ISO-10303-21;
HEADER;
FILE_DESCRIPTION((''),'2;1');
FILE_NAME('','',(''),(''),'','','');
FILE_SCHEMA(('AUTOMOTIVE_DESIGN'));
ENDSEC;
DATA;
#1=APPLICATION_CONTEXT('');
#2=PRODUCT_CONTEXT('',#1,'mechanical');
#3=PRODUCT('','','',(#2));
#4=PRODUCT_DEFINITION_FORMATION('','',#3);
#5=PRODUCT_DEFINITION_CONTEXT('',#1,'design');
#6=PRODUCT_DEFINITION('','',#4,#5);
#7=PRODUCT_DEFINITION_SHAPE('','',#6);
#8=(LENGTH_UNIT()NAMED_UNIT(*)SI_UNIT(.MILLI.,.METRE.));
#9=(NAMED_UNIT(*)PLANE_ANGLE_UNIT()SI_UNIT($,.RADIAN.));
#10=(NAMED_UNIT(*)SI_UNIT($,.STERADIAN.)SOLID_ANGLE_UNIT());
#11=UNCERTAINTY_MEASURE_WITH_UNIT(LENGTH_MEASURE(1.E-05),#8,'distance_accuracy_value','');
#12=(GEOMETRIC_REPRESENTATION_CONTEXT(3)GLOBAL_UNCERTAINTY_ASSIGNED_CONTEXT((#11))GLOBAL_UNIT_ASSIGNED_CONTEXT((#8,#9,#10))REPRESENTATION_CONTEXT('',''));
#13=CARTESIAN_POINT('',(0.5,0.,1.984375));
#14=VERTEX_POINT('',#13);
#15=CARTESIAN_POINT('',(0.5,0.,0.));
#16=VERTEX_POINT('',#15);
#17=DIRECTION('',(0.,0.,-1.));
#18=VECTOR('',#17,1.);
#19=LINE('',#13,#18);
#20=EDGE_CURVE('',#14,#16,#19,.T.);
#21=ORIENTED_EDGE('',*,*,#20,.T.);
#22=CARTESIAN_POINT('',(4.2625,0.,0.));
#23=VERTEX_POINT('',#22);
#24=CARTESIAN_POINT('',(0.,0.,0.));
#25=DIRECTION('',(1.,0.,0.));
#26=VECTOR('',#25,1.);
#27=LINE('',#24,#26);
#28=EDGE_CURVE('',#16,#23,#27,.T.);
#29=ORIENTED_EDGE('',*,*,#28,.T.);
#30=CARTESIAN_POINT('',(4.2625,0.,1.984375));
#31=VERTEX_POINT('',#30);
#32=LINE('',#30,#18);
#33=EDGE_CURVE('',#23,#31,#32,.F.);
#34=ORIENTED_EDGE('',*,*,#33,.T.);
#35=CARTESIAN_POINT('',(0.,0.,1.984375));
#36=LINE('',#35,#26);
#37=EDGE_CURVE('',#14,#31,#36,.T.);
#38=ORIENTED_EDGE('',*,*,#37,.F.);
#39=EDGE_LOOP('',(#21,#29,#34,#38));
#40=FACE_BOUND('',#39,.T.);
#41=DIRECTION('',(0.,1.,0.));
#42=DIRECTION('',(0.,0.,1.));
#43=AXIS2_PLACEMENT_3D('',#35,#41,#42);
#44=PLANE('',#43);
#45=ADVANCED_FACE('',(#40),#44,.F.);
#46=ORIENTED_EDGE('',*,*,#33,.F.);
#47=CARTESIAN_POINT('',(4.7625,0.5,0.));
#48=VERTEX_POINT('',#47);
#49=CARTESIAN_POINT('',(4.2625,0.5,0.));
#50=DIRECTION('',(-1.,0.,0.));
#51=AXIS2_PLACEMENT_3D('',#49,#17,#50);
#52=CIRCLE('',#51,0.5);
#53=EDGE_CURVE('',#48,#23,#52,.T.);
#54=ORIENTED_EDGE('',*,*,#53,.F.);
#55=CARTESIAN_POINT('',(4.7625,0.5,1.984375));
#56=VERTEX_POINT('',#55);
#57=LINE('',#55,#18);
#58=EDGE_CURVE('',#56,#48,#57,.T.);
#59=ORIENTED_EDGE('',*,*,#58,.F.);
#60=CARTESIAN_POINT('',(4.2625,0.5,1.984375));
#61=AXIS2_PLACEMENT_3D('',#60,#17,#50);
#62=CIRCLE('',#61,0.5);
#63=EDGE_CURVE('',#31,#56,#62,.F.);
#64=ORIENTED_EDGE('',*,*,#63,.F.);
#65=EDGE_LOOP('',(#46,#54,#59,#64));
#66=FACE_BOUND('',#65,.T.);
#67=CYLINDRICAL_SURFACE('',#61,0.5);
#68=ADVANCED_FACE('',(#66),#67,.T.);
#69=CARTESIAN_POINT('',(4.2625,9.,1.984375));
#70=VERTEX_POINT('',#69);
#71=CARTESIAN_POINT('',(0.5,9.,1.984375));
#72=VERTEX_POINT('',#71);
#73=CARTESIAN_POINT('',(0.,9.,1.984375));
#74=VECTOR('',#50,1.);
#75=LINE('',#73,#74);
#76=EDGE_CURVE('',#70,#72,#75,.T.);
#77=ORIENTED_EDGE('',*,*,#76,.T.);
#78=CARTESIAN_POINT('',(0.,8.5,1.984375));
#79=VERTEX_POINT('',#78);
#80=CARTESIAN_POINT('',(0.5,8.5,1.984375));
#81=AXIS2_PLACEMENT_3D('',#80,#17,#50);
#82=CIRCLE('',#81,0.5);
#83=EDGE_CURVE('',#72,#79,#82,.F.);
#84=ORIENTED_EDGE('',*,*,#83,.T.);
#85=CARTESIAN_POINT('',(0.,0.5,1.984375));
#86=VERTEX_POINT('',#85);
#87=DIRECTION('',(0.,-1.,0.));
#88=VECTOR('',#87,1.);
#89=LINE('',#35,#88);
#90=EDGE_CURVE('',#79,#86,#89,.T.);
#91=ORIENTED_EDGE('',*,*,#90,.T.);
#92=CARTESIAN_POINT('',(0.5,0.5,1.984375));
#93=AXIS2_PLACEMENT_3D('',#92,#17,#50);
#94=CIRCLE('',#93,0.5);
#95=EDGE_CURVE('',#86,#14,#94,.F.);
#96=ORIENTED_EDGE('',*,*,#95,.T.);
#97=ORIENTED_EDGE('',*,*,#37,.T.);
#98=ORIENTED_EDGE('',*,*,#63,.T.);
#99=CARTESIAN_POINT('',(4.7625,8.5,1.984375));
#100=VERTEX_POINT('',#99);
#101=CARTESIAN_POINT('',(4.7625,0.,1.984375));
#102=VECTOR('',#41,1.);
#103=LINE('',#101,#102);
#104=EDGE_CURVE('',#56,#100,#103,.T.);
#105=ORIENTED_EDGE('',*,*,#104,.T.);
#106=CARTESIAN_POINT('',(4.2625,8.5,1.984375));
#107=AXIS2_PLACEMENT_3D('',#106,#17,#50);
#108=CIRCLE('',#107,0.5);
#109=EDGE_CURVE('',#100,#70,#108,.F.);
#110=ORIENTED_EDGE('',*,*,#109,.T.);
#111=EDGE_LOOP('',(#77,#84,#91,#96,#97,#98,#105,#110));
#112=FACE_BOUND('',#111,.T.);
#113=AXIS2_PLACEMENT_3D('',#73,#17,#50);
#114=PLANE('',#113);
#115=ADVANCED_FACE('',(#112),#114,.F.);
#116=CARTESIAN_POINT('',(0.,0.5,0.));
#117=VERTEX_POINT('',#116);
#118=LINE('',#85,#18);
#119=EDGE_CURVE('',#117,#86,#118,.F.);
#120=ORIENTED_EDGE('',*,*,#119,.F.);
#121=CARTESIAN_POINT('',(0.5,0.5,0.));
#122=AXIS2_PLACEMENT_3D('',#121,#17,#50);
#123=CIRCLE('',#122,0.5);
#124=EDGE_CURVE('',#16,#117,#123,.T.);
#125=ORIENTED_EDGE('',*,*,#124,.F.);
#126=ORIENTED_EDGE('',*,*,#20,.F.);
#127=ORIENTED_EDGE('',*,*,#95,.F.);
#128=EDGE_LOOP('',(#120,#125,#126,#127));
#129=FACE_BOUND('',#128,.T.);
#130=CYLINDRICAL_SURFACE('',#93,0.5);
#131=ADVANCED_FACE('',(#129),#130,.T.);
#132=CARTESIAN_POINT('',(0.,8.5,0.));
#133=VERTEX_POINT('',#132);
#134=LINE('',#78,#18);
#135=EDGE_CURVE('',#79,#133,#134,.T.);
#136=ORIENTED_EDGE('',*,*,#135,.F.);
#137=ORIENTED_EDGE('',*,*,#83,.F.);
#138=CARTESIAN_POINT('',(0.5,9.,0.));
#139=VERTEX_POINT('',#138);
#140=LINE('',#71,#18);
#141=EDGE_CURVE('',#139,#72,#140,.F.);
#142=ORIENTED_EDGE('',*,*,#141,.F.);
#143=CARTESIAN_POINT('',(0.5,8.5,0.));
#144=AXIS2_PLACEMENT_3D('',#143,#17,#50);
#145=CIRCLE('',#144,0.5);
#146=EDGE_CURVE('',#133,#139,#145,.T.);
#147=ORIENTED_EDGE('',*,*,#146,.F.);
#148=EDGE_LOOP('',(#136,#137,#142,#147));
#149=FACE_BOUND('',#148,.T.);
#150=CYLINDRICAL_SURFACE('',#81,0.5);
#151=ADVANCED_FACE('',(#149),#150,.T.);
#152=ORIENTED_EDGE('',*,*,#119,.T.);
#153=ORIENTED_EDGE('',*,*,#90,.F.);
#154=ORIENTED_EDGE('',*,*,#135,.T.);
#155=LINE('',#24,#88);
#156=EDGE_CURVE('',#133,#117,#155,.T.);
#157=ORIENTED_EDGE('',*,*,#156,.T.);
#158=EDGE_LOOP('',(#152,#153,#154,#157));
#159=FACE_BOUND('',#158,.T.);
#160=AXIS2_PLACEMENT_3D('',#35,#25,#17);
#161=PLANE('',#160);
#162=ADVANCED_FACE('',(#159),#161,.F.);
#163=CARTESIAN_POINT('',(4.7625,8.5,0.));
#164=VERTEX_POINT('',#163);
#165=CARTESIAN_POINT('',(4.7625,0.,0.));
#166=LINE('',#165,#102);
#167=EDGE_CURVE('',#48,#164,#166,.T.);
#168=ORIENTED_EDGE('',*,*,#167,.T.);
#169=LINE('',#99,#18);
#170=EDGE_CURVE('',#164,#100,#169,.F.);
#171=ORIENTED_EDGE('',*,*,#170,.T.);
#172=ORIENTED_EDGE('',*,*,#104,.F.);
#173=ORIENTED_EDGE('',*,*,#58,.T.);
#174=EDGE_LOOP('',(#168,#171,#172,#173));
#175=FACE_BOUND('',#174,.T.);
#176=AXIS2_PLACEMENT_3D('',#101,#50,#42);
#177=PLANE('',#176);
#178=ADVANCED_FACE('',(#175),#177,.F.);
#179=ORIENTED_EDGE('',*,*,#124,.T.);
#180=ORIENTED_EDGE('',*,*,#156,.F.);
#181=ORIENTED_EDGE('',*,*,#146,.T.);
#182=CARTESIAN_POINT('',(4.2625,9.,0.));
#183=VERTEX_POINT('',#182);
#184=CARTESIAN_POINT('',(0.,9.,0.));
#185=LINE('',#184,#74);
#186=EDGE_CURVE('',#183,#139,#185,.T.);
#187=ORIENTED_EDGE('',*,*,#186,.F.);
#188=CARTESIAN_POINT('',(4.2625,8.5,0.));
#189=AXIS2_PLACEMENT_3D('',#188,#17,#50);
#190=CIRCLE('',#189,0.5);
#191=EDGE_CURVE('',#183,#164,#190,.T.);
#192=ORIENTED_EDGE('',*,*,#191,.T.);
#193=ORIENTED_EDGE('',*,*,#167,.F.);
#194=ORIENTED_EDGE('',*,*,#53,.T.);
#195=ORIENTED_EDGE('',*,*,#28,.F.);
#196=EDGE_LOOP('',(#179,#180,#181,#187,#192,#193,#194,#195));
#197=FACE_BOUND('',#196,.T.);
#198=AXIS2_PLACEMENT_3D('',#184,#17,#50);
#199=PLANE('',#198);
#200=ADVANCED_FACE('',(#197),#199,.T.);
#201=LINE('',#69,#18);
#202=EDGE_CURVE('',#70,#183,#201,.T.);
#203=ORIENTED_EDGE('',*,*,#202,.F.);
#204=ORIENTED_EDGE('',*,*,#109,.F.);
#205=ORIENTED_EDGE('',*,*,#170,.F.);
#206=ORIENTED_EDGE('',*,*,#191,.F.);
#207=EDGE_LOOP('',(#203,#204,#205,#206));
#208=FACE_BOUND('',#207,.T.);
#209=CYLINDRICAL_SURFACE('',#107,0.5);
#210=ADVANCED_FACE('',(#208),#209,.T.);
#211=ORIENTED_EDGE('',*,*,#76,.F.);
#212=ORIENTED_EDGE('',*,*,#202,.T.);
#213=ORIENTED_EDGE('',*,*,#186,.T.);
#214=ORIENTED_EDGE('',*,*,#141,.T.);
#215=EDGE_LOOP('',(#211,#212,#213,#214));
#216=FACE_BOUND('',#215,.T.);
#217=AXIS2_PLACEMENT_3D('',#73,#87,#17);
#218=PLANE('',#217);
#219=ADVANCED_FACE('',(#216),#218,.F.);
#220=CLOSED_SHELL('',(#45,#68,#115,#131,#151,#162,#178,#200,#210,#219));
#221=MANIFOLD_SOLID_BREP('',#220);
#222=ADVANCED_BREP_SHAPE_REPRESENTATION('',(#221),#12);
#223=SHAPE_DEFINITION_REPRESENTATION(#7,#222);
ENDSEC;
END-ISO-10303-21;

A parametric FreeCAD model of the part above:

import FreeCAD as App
import Part
import Sketcher


def edges_at(feature, points):
    """Names of the edges that pass closest to the given points."""
    edges = feature.Shape.Edges
    near = lambda p: min(range(len(edges)), key=lambda i: edges[i].distToShape(Part.Vertex(*p))[0])
    return sorted({f"Edge{near(p) + 1}" for p in points})


def add_polygon(sketch, points):
    """Adds a closed chain of lines whose ends are joined by coincident constraints."""
    first, n = sketch.GeometryCount, len(points)
    for a, b in zip(points, points[1:] + points[:1]):
        sketch.addGeometry(Part.LineSegment(App.Vector(*a, 0), App.Vector(*b, 0)), False)
    for i in range(n):
        sketch.addConstraint(Sketcher.Constraint("Coincident", first + i, 2, first + (i + 1) % n, 1))

doc = App.newDocument("Part")
body = doc.addObject("PartDesign::Body", "Body")

# Sketch on XY plane
sketch1 = doc.addObject("Sketcher::SketchObject", "Sketch")
body.addObject(sketch1)
sketch1.AttachmentSupport = (doc.XY_Plane, [""])
sketch1.MapMode = "FlatFace"
add_polygon(sketch1, [(0, 9), (0, 0), (4.8, 0), (4.8, 9)])  # lines 0-3
sketch1.addConstraint([
    Sketcher.Constraint("Vertical", 0),
    Sketcher.Constraint("Horizontal", 1),
    Sketcher.Constraint("Vertical", 2),
    Sketcher.Constraint("Horizontal", 3),
    Sketcher.Constraint("Coincident", 0, 2, -1, 1),
    Sketcher.Constraint("DistanceY", 0, 2, 0, 1, 9.0),
    Sketcher.Constraint("DistanceX", 1, 1, 1, 2, 4.7625),
])
pad1 = doc.addObject("PartDesign::Pad", "Pad")
body.addObject(pad1)
pad1.Profile = sketch1
pad1.Length = 1.984375
doc.recompute()

fillet = doc.addObject("PartDesign::Fillet", "Fillet")
body.addObject(fillet)
fillet.Base = (pad1, edges_at(pad1, [(0, 9, 0.992), (4.763, 9, 0.992)]))
fillet.Radius = 0.5
doc.recompute()

fillet2 = doc.addObject("PartDesign::Fillet", "Fillet001")
body.addObject(fillet2)
fillet2.Base = (fillet, edges_at(fillet, [(4.763, 0, 0.992), (0, 0, 0.992)]))
fillet2.Radius = 0.5

doc.recompute()
